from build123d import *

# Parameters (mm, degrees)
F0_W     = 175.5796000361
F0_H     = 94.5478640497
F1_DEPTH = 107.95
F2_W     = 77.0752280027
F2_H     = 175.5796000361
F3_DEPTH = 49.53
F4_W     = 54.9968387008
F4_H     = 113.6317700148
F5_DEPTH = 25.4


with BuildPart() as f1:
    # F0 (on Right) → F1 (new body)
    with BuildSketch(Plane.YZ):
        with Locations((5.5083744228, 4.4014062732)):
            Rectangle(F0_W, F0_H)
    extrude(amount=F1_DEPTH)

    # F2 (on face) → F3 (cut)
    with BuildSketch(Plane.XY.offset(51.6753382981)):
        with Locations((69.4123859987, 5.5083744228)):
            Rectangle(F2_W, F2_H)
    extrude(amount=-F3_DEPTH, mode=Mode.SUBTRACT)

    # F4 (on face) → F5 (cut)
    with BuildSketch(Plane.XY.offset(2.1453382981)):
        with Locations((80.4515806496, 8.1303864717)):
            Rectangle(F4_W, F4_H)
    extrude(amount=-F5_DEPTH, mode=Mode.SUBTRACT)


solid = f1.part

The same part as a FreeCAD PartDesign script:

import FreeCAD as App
import Part
import Sketcher

V = App.Vector
Q = App.Units.Quantity


def add_polygon(sketch, points):
    """Adds a closed chain of lines whose ends are joined by coincident constraints."""
    first, n = sketch.GeometryCount, len(points)
    for a, b in zip(points, points[1:] + points[:1]):
        sketch.addGeometry(Part.LineSegment(App.Vector(*a, 0), App.Vector(*b, 0)), False)
    for i in range(n):
        sketch.addConstraint(Sketcher.Constraint("Coincident", first + i, 2, first + (i + 1) % n, 1))

doc = App.newDocument("Part")
body = doc.addObject("PartDesign::Body", "Body")

# Sketch on YZ plane
sketch1 = body.newObject("Sketcher::SketchObject", "Sketch")
sketch1.AttachmentSupport = (doc.getObject("YZ_Plane"), [""])
sketch1.MapMode = "FlatFace"
add_polygon(sketch1, [(-82, 52), (-82, -43), (93, -43), (93, 52)])  # lines 0-3
sketch1.addConstraint([
    Sketcher.Constraint("Vertical", 0),
    Sketcher.Constraint("Horizontal", 1),
    Sketcher.Constraint("Vertical", 2),
    Sketcher.Constraint("Horizontal", 3),
    Sketcher.Constraint("DistanceX", 1, 1, 1, 2, Q("175.5796 mm")),
    Sketcher.Constraint("DistanceY", 0, 2, 0, 1, Q("94.547864 mm")),
    Sketcher.Constraint("DistanceY", -1, 1, 2, 2, Q("51.675338 mm")),
    Sketcher.Constraint("DistanceX", 0, 2, -1, 1, Q("82.281426 mm")),
])
pad1 = body.newObject("PartDesign::Pad", "Pad")
pad1.Profile = sketch1
pad1.Length = Q("4.25 in")

# Sketch on XY plane
sketch2 = body.newObject("Sketcher::SketchObject", "Sketch001")
sketch2.AttachmentSupport = (doc.getObject("XY_Plane"), [""])
sketch2.MapMode = "FlatFace"
sketch2.AttachmentOffset = App.Placement(V(0, 0, 51.675338), App.Rotation())
add_polygon(sketch2, [(31, 93), (31, -82), (108, -82), (108, 93)])  # lines 0-3
sketch2.addConstraint([
    Sketcher.Constraint("Vertical", 0),
    Sketcher.Constraint("Horizontal", 1),
    Sketcher.Constraint("Vertical", 2),
    Sketcher.Constraint("Horizontal", 3),
    Sketcher.Constraint("DistanceX", -1, 1, 1, 2, Q("4.25 in")),
    Sketcher.Constraint("DistanceY", 0, 2, 0, 1, Q("175.5796 mm")),
    Sketcher.Constraint("DistanceX", 1, 1, 1, 2, Q("77.075228 mm")),
    Sketcher.Constraint("DistanceY", 0, 2, -1, 1, Q("82.281426 mm")),
])
pocket1 = body.newObject("PartDesign::Pocket", "Pocket")
pocket1.Profile = sketch2
pocket1.Length = Q("1.95 in")

# Sketch on XY plane
sketch3 = body.newObject("Sketcher::SketchObject", "Sketch002")
sketch3.AttachmentSupport = (doc.getObject("XY_Plane"), [""])
sketch3.MapMode = "FlatFace"
sketch3.AttachmentOffset = App.Placement(V(0, 0, 2.145338), App.Rotation())
add_polygon(sketch3, [(53, 65), (53, -49), (108, -49), (108, 65)])  # lines 0-3
sketch3.addConstraint([
    Sketcher.Constraint("Vertical", 0),
    Sketcher.Constraint("Horizontal", 1),
    Sketcher.Constraint("Vertical", 2),
    Sketcher.Constraint("Horizontal", 3),
    Sketcher.Constraint("DistanceX", -1, 1, 1, 2, Q("4.25 in")),
    Sketcher.Constraint("DistanceX", 1, 1, 1, 2, Q("54.996839 mm")),
    Sketcher.Constraint("DistanceY", 0, 2, 0, 1, Q("113.63177 mm")),
    Sketcher.Constraint("DistanceY", 0, 2, -1, 1, Q("48.685499 mm")),
])
pocket2 = body.newObject("PartDesign::Pocket", "Pocket001")
pocket2.Profile = sketch3
pocket2.Length = Q("1 in")

doc.recompute()
